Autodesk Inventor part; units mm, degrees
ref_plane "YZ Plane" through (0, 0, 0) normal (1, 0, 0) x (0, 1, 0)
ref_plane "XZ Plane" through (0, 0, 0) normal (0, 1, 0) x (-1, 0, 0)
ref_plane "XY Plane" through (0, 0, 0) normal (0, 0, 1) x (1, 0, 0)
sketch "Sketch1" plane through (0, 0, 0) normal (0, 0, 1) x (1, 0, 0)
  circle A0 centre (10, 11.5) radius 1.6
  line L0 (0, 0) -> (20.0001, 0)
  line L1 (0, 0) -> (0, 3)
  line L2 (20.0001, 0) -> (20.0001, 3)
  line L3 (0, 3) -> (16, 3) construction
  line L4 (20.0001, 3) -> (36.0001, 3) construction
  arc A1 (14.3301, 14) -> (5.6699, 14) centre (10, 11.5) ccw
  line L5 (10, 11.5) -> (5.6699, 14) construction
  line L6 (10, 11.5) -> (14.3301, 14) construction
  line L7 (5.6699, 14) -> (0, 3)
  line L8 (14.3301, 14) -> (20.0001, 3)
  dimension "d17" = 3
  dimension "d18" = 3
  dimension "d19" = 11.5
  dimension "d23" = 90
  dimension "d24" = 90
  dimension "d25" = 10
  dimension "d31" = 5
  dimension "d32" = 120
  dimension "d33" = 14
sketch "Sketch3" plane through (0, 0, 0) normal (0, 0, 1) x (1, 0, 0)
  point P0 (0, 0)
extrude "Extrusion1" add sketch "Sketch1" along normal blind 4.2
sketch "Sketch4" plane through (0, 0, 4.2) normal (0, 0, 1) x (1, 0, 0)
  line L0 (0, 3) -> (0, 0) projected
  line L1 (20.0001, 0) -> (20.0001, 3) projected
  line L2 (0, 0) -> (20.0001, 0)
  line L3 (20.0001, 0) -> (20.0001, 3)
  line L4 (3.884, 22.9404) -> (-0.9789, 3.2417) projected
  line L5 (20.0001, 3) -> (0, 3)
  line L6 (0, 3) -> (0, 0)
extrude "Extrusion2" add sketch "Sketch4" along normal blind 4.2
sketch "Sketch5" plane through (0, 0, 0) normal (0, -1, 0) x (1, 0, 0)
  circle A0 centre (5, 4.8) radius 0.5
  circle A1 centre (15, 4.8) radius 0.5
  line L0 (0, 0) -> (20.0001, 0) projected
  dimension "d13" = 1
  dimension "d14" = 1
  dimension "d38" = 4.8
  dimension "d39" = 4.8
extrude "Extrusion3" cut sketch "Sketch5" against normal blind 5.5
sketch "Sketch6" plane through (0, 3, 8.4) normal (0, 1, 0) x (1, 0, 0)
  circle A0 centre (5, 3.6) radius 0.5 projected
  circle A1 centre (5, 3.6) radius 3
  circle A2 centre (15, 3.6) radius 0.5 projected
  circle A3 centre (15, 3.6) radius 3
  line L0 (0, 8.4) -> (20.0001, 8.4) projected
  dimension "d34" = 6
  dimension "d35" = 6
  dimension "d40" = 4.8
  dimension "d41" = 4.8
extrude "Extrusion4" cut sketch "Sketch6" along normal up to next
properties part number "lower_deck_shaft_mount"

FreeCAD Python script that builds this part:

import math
import FreeCAD as App
import Part
import Sketcher
Q = App.Units.Quantity

doc = App.newDocument("Part")
body = doc.addObject("PartDesign::Body", "Body")

sketch1 = doc.addObject("Sketcher::SketchObject", "Sketch")
body.addObject(sketch1)
sketch1.AttachmentSupport = (doc.XY_Plane, [""])
sketch1.MapMode = "FlatFace"
sketch1.addGeometry([
    Part.LineSegment(App.Vector(0, 3, 0), App.Vector(0, 0, 0)),
    Part.LineSegment(App.Vector(0, 0, 0), App.Vector(20.0001, 0, 0)),
    Part.LineSegment(App.Vector(20.0001, 0, 0), App.Vector(20.0001, 3, 0)),
    Part.LineSegment(App.Vector(20.0001, 3, 0), App.Vector(14.3301, 14, 0)),
    Part.ArcOfCircle(Part.Circle(App.Vector(10, 11.5, 0), App.Vector(0, 0, 1), 4.999977), math.radians(30.000155), math.radians(149.999845)),
    Part.LineSegment(App.Vector(5.6699, 14, 0), App.Vector(0, 3, 0)),
    Part.Circle(App.Vector(10, 11.5, 0), App.Vector(0, 0, 1), 1.6),
], False)
sketch1.addConstraint([
    Sketcher.Constraint("Coincident", 0, 2, 1, 1),
    Sketcher.Constraint("Coincident", 1, 2, 2, 1),
    Sketcher.Constraint("Coincident", 2, 2, 3, 1),
    Sketcher.Constraint("Coincident", 3, 2, 4, 1),
    Sketcher.Constraint("Coincident", 4, 2, 5, 1),
    Sketcher.Constraint("Coincident", 5, 2, 0, 1),
    Sketcher.Constraint("Vertical", 0),
    Sketcher.Constraint("Horizontal", 1),
    Sketcher.Constraint("Vertical", 2),
    Sketcher.Constraint("Coincident", 0, 2, -1, 1),
    Sketcher.Constraint("Coincident", 6, 3, 4, 3),
    Sketcher.Constraint("Horizontal", 3, 2, 4, 2),
    Sketcher.Constraint("Horizontal", 2, 2, 5, 2),
    Sketcher.Constraint("Equal", 3, 5),
    Sketcher.Constraint("Radius", 4, Q("5 mm")),
    Sketcher.Constraint("DistanceY", 0, 2, 0, 1, Q("3 mm")),
    Sketcher.Constraint("DistanceX", -1, 1, 4, 3, Q("10 mm")),
    Sketcher.Constraint("DistanceY", -1, 1, 3, 2, Q("14 mm")),
    Sketcher.Constraint("Diameter", 6, Q("3.2 mm")),
    Sketcher.Constraint("DistanceY", -1, 1, 4, 3, Q("11.5 mm")),
])
pad1 = doc.addObject("PartDesign::Pad", "Pad")
body.addObject(pad1)
pad1.Profile = sketch1
pad1.Length = 4.2

sketch2 = doc.addObject("Sketcher::SketchObject", "Sketch001")
body.addObject(sketch2)
sketch2.AttachmentSupport = (doc.XY_Plane, [""])
sketch2.MapMode = "FlatFace"
sketch2.AttachmentOffset = App.Placement(App.Vector(0, 0, 4.2), App.Rotation())
sketch2.addGeometry([
    Part.LineSegment(App.Vector(20.0001, 3, 0), App.Vector(0, 3, 0)),
    Part.LineSegment(App.Vector(0, 3, 0), App.Vector(0, 0, 0)),
    Part.LineSegment(App.Vector(0, 0, 0), App.Vector(20.0001, 0, 0)),
    Part.LineSegment(App.Vector(20.0001, 0, 0), App.Vector(20.0001, 3, 0)),
], False)
sketch2.addConstraint([
    Sketcher.Constraint("Coincident", 0, 2, 1, 1),
    Sketcher.Constraint("Coincident", 1, 2, 2, 1),
    Sketcher.Constraint("Coincident", 2, 2, 3, 1),
    Sketcher.Constraint("Coincident", 3, 2, 0, 1),
    Sketcher.Constraint("Horizontal", 0),
    Sketcher.Constraint("Vertical", 1),
    Sketcher.Constraint("Horizontal", 2),
    Sketcher.Constraint("Vertical", 3),
    Sketcher.Constraint("Coincident", 1, 2, -1, 1),
    Sketcher.Constraint("DistanceX", 0, 2, 0, 1, Q("20 mm")),
    Sketcher.Constraint("DistanceY", 1, 2, 1, 1, Q("3 mm")),
])
pad2 = doc.addObject("PartDesign::Pad", "Pad001")
body.addObject(pad2)
pad2.Profile = sketch2
pad2.Length = 4.2

sketch3 = doc.addObject("Sketcher::SketchObject", "Sketch002")
body.addObject(sketch3)
sketch3.AttachmentSupport = (doc.XZ_Plane, [""])
sketch3.MapMode = "FlatFace"
sketch3.addGeometry([
    Part.Circle(App.Vector(5, 4.8, 0), App.Vector(0, 0, 1), 0.5),
    Part.Circle(App.Vector(15, 4.8, 0), App.Vector(0, 0, 1), 0.5),
], False)
sketch3.addConstraint([
    Sketcher.Constraint("Equal", 0, 1),
    Sketcher.Constraint("Horizontal", 0, 3, 1, 3),
    Sketcher.Constraint("Diameter", 0, Q("1 mm")),
    Sketcher.Constraint("DistanceY", -1, 1, 0, 3, Q("4.8 mm")),
    Sketcher.Constraint("DistanceX", -1, 1, 0, 3, Q("5 mm")),
    Sketcher.Constraint("DistanceX", -1, 1, 1, 3, Q("15 mm")),
])
pocket1 = doc.addObject("PartDesign::Pocket", "Pocket")
body.addObject(pocket1)
pocket1.Profile = sketch3
pocket1.Length = 5.5

sketch4 = doc.addObject("Sketcher::SketchObject", "Sketch003")
body.addObject(sketch4)
sketch4.AttachmentSupport = (doc.XZ_Plane, [""])
sketch4.MapMode = "FlatFace"
sketch4.AttachmentOffset = App.Placement(App.Vector(0, 0, -3), App.Rotation())
sketch4.addGeometry([
    Part.Circle(App.Vector(5, 4.8, 0), App.Vector(0, 0, 1), 3),
    Part.Circle(App.Vector(5, 4.8, 0), App.Vector(0, 0, 1), 0.5),
    Part.Circle(App.Vector(15, 4.8, 0), App.Vector(0, 0, 1), 3),
    Part.Circle(App.Vector(15, 4.8, 0), App.Vector(0, 0, 1), 0.5),
], False)
sketch4.addConstraint([
    Sketcher.Constraint("Coincident", 1, 3, 0, 3),
    Sketcher.Constraint("Coincident", 3, 3, 2, 3),
    Sketcher.Constraint("Equal", 0, 2),
    Sketcher.Constraint("Equal", 1, 3),
    Sketcher.Constraint("Horizontal", 1, 3, 2, 3),
    Sketcher.Constraint("Diameter", 0, Q("6 mm")),
    Sketcher.Constraint("Diameter", 1, Q("1 mm")),
    Sketcher.Constraint("DistanceY", -1, 1, 0, 3, Q("4.8 mm")),
    Sketcher.Constraint("DistanceX", -1, 1, 0, 3, Q("5 mm")),
    Sketcher.Constraint("DistanceX", -1, 1, 2, 3, Q("15 mm")),
])
pocket2 = doc.addObject("PartDesign::Pocket", "Pocket001")
body.addObject(pocket2)
pocket2.Profile = sketch4
pocket2.Length = 13.0556

doc.recompute()
